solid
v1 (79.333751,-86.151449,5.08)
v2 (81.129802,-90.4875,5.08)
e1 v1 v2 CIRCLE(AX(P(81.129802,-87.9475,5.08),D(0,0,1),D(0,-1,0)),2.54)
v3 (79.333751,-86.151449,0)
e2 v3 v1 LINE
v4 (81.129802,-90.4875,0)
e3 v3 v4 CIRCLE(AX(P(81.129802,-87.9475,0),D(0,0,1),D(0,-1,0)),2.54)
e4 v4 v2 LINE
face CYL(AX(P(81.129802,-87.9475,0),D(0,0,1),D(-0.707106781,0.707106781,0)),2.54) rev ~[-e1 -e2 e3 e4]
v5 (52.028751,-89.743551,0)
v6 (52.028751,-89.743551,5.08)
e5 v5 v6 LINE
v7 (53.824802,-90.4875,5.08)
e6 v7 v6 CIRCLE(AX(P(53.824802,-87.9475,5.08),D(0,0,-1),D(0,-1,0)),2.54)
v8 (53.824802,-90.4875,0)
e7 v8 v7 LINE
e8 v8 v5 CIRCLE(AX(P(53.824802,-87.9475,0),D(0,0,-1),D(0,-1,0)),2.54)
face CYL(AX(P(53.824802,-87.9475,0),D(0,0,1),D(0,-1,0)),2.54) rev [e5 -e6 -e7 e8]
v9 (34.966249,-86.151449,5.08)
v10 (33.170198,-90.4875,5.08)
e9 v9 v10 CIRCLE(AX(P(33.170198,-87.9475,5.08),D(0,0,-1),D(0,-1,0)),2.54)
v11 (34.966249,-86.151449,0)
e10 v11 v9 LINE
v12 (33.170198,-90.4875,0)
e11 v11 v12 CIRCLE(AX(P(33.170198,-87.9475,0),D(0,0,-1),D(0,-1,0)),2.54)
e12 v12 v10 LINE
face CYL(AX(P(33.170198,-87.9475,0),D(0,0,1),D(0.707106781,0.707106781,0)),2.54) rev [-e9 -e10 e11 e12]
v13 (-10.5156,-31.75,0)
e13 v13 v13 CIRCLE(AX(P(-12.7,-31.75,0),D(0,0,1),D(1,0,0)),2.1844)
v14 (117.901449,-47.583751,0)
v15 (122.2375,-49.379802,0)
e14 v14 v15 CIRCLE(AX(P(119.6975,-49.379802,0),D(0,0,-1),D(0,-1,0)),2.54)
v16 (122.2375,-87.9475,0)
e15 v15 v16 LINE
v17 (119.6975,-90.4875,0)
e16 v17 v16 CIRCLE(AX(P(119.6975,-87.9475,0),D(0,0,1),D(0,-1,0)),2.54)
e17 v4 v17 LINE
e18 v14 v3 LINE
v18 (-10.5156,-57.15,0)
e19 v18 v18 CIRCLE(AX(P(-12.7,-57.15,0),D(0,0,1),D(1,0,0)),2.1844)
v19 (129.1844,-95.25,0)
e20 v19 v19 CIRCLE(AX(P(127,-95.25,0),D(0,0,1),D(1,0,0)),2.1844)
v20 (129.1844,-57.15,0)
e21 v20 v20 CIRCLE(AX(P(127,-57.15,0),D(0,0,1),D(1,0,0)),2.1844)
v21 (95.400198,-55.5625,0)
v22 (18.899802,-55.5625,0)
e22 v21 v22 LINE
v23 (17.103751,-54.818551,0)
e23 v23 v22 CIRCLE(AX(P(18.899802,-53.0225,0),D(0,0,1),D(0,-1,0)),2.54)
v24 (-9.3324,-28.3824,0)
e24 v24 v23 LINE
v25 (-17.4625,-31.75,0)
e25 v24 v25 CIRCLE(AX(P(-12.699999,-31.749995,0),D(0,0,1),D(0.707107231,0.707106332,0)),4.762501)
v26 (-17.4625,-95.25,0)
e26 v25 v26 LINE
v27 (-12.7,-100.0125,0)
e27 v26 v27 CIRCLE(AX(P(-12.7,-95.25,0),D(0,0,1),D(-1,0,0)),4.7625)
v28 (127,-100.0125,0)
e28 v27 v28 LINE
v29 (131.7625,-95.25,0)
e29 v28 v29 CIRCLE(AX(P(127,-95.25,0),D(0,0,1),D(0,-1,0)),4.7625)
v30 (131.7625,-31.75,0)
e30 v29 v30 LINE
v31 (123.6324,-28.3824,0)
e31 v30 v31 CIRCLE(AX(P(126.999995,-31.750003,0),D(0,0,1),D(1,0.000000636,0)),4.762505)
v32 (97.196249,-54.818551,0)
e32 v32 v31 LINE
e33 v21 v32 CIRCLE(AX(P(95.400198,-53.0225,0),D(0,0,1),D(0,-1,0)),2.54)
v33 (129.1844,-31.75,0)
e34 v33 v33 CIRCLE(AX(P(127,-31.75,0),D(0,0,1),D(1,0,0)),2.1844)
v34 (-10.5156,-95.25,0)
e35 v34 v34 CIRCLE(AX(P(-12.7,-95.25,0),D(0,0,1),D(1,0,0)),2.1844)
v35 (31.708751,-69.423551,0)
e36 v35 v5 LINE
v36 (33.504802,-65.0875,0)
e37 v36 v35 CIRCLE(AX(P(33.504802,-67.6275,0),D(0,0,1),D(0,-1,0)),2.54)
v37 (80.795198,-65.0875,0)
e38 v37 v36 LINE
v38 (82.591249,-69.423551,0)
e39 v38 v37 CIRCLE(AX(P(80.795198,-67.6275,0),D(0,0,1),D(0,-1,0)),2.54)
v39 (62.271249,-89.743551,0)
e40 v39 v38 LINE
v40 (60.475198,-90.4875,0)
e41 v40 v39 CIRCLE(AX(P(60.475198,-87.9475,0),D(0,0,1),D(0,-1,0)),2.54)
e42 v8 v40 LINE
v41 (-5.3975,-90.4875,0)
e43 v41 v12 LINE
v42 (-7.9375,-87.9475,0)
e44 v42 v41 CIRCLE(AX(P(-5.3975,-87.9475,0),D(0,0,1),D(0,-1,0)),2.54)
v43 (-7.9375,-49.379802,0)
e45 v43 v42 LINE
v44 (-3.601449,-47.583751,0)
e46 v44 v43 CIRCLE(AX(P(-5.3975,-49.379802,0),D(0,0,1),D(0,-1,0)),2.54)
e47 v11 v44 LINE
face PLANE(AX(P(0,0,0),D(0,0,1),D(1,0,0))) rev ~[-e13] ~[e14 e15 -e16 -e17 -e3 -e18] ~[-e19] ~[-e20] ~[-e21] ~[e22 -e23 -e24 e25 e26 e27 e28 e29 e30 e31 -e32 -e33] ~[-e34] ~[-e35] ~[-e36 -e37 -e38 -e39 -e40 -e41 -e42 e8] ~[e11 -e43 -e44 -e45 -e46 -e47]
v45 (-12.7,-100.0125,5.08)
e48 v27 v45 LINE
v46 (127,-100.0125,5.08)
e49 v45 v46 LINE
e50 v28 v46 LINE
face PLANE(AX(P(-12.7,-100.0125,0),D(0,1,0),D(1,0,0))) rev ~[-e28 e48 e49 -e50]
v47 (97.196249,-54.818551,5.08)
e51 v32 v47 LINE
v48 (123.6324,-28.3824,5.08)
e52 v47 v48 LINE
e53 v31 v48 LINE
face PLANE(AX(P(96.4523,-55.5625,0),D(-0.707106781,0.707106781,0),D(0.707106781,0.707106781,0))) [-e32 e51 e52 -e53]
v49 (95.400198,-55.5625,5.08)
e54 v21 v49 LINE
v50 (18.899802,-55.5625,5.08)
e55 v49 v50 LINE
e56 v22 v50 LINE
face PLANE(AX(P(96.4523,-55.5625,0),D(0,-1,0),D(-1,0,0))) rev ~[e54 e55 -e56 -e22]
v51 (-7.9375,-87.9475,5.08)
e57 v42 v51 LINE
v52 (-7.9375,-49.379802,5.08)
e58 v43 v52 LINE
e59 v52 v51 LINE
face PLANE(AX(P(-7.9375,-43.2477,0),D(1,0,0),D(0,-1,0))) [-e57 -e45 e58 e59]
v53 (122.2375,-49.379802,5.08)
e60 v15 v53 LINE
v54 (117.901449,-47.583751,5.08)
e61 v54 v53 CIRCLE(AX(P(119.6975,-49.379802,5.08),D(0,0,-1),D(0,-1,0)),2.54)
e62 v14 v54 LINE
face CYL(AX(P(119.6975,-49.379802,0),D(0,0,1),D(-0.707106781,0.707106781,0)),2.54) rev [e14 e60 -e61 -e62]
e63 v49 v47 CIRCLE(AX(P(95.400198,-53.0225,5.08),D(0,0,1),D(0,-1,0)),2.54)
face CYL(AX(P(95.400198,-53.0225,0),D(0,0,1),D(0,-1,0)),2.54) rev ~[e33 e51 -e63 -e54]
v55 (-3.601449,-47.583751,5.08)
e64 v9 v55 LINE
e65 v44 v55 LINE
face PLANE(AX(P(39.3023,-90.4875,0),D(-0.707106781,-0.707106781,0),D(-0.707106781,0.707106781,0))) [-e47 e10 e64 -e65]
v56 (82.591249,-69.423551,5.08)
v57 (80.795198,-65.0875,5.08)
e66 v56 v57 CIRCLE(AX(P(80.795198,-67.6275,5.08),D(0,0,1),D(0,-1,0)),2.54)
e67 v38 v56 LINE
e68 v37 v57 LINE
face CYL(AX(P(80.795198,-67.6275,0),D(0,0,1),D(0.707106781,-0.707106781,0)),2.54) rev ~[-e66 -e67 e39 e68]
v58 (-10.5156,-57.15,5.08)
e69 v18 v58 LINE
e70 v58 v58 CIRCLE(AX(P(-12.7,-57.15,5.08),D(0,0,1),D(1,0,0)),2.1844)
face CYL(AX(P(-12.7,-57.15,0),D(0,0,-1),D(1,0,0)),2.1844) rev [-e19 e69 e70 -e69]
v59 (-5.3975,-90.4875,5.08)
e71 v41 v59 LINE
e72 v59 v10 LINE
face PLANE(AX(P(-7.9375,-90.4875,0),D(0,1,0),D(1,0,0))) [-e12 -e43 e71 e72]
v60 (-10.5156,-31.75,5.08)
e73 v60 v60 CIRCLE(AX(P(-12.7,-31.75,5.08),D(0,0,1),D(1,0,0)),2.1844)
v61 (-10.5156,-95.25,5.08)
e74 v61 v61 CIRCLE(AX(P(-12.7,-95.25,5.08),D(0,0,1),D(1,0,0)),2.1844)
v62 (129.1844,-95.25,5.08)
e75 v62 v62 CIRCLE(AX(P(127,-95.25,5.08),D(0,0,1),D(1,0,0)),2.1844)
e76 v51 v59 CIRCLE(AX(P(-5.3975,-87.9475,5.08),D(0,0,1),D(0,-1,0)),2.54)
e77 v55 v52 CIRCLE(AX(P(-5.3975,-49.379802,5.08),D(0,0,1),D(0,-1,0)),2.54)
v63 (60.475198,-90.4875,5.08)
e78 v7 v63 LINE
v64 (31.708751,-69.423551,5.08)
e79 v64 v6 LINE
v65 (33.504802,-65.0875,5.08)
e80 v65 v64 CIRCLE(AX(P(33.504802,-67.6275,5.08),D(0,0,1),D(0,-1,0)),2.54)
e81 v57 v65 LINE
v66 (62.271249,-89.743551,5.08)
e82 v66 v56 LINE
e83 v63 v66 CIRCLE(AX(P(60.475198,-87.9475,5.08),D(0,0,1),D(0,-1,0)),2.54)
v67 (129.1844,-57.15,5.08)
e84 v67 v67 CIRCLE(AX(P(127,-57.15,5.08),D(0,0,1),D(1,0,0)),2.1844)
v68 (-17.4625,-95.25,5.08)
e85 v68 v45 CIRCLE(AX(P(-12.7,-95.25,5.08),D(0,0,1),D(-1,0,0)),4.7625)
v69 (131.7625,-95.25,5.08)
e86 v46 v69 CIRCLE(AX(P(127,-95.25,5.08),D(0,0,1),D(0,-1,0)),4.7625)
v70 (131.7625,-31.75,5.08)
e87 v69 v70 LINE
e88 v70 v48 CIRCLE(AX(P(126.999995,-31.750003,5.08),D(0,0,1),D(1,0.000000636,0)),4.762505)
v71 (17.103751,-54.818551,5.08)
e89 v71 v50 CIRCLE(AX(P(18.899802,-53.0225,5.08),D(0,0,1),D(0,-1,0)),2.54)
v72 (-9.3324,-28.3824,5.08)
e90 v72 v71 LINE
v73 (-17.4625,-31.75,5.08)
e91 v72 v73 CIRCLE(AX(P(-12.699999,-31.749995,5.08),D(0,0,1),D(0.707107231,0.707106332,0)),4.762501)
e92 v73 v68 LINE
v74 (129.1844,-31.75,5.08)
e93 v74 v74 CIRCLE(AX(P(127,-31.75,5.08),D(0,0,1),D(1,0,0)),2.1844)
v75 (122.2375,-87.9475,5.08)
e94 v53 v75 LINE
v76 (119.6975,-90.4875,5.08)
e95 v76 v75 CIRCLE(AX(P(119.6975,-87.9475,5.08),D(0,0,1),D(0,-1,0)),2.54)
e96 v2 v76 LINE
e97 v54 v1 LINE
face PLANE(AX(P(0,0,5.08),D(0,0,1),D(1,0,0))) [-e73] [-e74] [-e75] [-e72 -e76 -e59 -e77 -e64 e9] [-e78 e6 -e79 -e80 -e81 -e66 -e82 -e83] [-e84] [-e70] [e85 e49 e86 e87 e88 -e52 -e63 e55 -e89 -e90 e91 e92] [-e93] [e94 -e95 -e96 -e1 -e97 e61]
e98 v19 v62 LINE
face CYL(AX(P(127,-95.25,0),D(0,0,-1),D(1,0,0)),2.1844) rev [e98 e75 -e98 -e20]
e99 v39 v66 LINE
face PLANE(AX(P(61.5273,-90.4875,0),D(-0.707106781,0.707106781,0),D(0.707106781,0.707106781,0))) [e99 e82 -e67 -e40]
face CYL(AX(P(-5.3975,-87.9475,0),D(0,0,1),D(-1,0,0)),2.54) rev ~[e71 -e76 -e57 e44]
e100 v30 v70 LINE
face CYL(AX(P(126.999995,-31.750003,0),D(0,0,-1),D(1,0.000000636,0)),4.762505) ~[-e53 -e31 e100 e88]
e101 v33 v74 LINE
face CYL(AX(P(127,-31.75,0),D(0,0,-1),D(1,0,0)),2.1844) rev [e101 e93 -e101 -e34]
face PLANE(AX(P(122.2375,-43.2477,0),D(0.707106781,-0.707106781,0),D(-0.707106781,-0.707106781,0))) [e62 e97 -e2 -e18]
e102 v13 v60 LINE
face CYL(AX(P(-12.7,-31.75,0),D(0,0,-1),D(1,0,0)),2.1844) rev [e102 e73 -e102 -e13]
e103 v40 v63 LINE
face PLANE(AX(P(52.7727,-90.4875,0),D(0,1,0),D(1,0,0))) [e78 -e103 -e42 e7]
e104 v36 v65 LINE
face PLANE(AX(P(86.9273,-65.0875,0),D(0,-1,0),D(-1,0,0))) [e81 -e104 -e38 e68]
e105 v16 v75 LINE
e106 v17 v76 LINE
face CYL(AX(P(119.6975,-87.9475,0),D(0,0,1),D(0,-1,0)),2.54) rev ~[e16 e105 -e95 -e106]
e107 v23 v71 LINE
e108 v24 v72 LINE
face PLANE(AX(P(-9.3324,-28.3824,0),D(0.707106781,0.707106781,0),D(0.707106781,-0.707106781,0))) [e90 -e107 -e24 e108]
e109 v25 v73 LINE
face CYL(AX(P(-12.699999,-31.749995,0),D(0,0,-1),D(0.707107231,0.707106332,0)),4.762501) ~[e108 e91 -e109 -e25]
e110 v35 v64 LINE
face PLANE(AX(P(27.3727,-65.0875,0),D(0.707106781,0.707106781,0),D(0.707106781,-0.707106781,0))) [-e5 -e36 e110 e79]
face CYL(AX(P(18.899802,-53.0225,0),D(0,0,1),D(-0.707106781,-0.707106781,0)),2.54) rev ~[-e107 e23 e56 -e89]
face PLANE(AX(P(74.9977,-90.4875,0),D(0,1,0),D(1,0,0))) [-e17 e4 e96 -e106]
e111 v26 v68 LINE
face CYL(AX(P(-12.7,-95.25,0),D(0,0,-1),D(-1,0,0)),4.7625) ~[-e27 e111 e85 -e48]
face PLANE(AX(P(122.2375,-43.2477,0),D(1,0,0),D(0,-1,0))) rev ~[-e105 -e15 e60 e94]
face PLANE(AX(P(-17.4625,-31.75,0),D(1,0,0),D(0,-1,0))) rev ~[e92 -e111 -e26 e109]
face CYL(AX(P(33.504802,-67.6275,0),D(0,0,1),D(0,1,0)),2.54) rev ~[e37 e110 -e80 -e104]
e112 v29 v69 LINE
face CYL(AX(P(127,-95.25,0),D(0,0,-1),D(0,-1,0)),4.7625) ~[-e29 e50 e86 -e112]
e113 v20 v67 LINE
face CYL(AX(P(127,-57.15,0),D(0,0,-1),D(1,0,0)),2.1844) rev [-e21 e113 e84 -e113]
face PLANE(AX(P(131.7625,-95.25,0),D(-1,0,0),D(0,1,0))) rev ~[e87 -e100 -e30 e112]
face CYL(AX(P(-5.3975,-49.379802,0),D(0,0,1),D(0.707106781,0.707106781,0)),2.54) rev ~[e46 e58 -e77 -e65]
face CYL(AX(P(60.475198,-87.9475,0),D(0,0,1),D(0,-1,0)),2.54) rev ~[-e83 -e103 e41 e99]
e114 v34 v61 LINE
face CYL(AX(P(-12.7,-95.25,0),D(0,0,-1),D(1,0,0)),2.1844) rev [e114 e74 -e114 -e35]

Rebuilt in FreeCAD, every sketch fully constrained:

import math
import FreeCAD as App
import Part
import Sketcher
Q = App.Units.Quantity


def edges_at(feature, points):
    """Names of the edges that pass closest to the given points."""
    edges = feature.Shape.Edges
    near = lambda p: min(range(len(edges)), key=lambda i: edges[i].distToShape(Part.Vertex(*p))[0])
    return sorted({f"Edge{near(p) + 1}" for p in points})

doc = App.newDocument("Part")
params = doc.addObject("Spreadsheet::Sheet", "Params")
for row, (alias, value) in enumerate([
    ("sketch1_radius", "0.1875 in"),
    ("sketch1_diameter", "0.172 in"),
    ("sketch1_width", "5.5 in"),
    ("sketch1_height", "2.5 in"),
    ("pad1_length", "0.2 in"),
    ("fillet_radius", "0.1 in"),
    ("fillet2_radius", "0.1 in"),
], start=1):
    params.set(f"A{row}", alias)
    params.set(f"B{row}", "=" + value)
    params.setAlias(f"B{row}", alias)

body = doc.addObject("PartDesign::Body", "Body")

sketch1 = body.newObject("Sketcher::SketchObject", "Sketch")
sketch1.AttachmentSupport = (doc.getObject("XY_Plane"), [""])
sketch1.MapMode = "FlatFace"
sketch1.addGeometry([
    Part.LineSegment(App.Vector(-17.5, -31.8, 0), App.Vector(-17.5, -95.2, 0)),
    Part.ArcOfCircle(Part.Circle(App.Vector(-12.7, -95.2, 0), App.Vector(0, 0, 1), 4.8), math.radians(180), math.radians(270)),
    Part.LineSegment(App.Vector(-12.7, -100, 0), App.Vector(127, -100, 0)),
    Part.ArcOfCircle(Part.Circle(App.Vector(127, -95.2, 0), App.Vector(0, 0, 1), 4.8), math.radians(-90), math.radians(0)),
    Part.LineSegment(App.Vector(131.8, -95.2, 0), App.Vector(131.8, -31.8, 0)),
    Part.ArcOfCircle(Part.Circle(App.Vector(127, -31.8, 0), App.Vector(0, 0, 1), 4.8), math.radians(0), math.radians(135)),
    Part.LineSegment(App.Vector(123.6, -28.4, 0), App.Vector(96.5, -55.6, 0)),
    Part.LineSegment(App.Vector(96.5, -55.6, 0), App.Vector(17.8, -55.6, 0)),
    Part.LineSegment(App.Vector(17.8, -55.6, 0), App.Vector(-9.3, -28.4, 0)),
    Part.ArcOfCircle(Part.Circle(App.Vector(-12.7, -31.8, 0), App.Vector(0, 0, 1), 4.8), math.radians(45), math.radians(180)),
    Part.Circle(App.Vector(-12.7, -95.2, 0), App.Vector(0, 0, 1), 2.2),
    Part.LineSegment(App.Vector(-7.9, -43.2, 0), App.Vector(39.3, -90.5, 0)),
    Part.LineSegment(App.Vector(39.3, -90.5, 0), App.Vector(-7.9, -90.5, 0)),
    Part.LineSegment(App.Vector(-7.9, -90.5, 0), App.Vector(-7.9, -43.2, 0)),
    Part.Circle(App.Vector(127, -95.2, 0), App.Vector(0, 0, 1), 2.2),
    Part.LineSegment(App.Vector(61.5, -90.5, 0), App.Vector(52.8, -90.5, 0)),
    Part.LineSegment(App.Vector(52.8, -90.5, 0), App.Vector(27.4, -65.1, 0)),
    Part.LineSegment(App.Vector(27.4, -65.1, 0), App.Vector(86.9, -65.1, 0)),
    Part.LineSegment(App.Vector(86.9, -65.1, 0), App.Vector(61.5, -90.5, 0)),
    Part.LineSegment(App.Vector(75, -90.5, 0), App.Vector(122.2, -43.2, 0)),
    Part.LineSegment(App.Vector(122.2, -43.2, 0), App.Vector(122.2, -90.5, 0)),
    Part.LineSegment(App.Vector(122.2, -90.5, 0), App.Vector(75, -90.5, 0)),
    Part.Circle(App.Vector(-12.7, -57.1, 0), App.Vector(0, 0, 1), 2.2),
    Part.Circle(App.Vector(-12.7, -31.8, 0), App.Vector(0, 0, 1), 2.2),
    Part.Circle(App.Vector(127, -57.1, 0), App.Vector(0, 0, 1), 2.2),
    Part.Circle(App.Vector(127, -31.8, 0), App.Vector(0, 0, 1), 2.2),
], False)
sketch1.addConstraint([
    Sketcher.Constraint("Tangent", 0, 2, 1, 1),
    Sketcher.Constraint("Tangent", 1, 2, 2, 1),
    Sketcher.Constraint("Tangent", 2, 2, 3, 1),
    Sketcher.Constraint("Tangent", 3, 2, 4, 1),
    Sketcher.Constraint("Tangent", 4, 2, 5, 1),
    Sketcher.Constraint("Tangent", 5, 2, 6, 1),
    Sketcher.Constraint("Coincident", 6, 2, 7, 1),
    Sketcher.Constraint("Coincident", 7, 2, 8, 1),
    Sketcher.Constraint("Tangent", 8, 2, 9, 1),
    Sketcher.Constraint("Tangent", 9, 2, 0, 1),
    Sketcher.Constraint("Coincident", 11, 2, 12, 1),
    Sketcher.Constraint("Coincident", 12, 2, 13, 1),
    Sketcher.Constraint("Coincident", 13, 2, 11, 1),
    Sketcher.Constraint("Coincident", 15, 2, 16, 1),
    Sketcher.Constraint("Coincident", 16, 2, 17, 1),
    Sketcher.Constraint("Coincident", 17, 2, 18, 1),
    Sketcher.Constraint("Coincident", 18, 2, 15, 1),
    Sketcher.Constraint("Coincident", 19, 2, 20, 1),
    Sketcher.Constraint("Coincident", 20, 2, 21, 1),
    Sketcher.Constraint("Coincident", 21, 2, 19, 1),
    Sketcher.Constraint("Vertical", 0),
    Sketcher.Constraint("Horizontal", 2),
    Sketcher.Constraint("Vertical", 4),
    Sketcher.Constraint("Horizontal", 7),
    Sketcher.Constraint("Horizontal", 12),
    Sketcher.Constraint("Vertical", 13),
    Sketcher.Constraint("Horizontal", 15),
    Sketcher.Constraint("Horizontal", 17),
    Sketcher.Constraint("Vertical", 20),
    Sketcher.Constraint("Horizontal", 21),
    Sketcher.Constraint("Coincident", 10, 3, 1, 3),
    Sketcher.Constraint("Coincident", 14, 3, 3, 3),
    Sketcher.Constraint("Coincident", 23, 3, 9, 3),
    Sketcher.Constraint("Coincident", 25, 3, 5, 3),
    Sketcher.Constraint("Equal", 1, 3),
    Sketcher.Constraint("Equal", 3, 5),
    Sketcher.Constraint("Equal", 5, 9),
    Sketcher.Constraint("Equal", 10, 14),
    Sketcher.Constraint("Equal", 14, 22),
    Sketcher.Constraint("Equal", 22, 23),
    Sketcher.Constraint("Equal", 23, 24),
    Sketcher.Constraint("Equal", 24, 25),
    Sketcher.Constraint("Perpendicular", 6, 8),
    Sketcher.Constraint("Parallel", 8, 11),
    Sketcher.Constraint("Parallel", 11, 16),
    Sketcher.Constraint("Perpendicular", 16, 18),
    Sketcher.Constraint("Parallel", 18, 19),
    Sketcher.Constraint("Horizontal", 5, 3, 9, 3),
    Sketcher.Constraint("Horizontal", 22, 3, 24, 3),
    Sketcher.Constraint("Horizontal", 5, 2, 8, 2),
    Sketcher.Constraint("Horizontal", 12, 2, 15, 2),
    Sketcher.Constraint("Horizontal", 13, 2, 19, 2),
    Sketcher.Constraint("Horizontal", 18, 2, 20, 2),
    Sketcher.Constraint("Vertical", 10, 3, 22, 3),
    Sketcher.Constraint("Vertical", 14, 3, 24, 3),
    Sketcher.Constraint("Radius", 1, Q("0.1875 in")),
    Sketcher.Constraint("DistanceY", 22, 3, 9, 3, Q("1 in")),
    Sketcher.Constraint("DistanceY", 11, 2, 16, 2, Q("1 in")),
    Sketcher.Constraint("Diameter", 10, Q("0.172 in")),
    Sketcher.Constraint("DistanceX", 2, 1, 2, 2, Q("5.5 in")),
    Sketcher.Constraint("DistanceY", 0, 2, 0, 1, Q("2.5 in")),
    Sketcher.Constraint("DistanceX", -1, 1, 3, 3, Q("5 in")),
    Sketcher.Constraint("DistanceY", 1, 2, 11, 2, Q("0.375 in")),
    Sketcher.Constraint("DistanceX", 0, 2, 12, 2, Q("0.375 in")),
    Sketcher.Constraint("DistanceX", 7, 2, 16, 2, Q("0.375 in")),
    Sketcher.Constraint("DistanceY", 16, 2, 7, 2, Q("0.375 in")),
    Sketcher.Constraint("DistanceX", 17, 2, 6, 2, Q("0.375 in")),
    Sketcher.Constraint("DistanceX", 19, 2, 4, 2, Q("0.375 in")),
    Sketcher.Constraint("DistanceY", 1, 3, -1, 1, Q("3.75 in")),
    Sketcher.Constraint("DistanceX", 11, 2, 18, 2, Q("0.875 in")),
])
sketch1.setExpression("Constraints[55]", "Params.sketch1_radius")
sketch1.setExpression("Constraints[58]", "Params.sketch1_diameter")
sketch1.setExpression("Constraints[59]", "Params.sketch1_width")
sketch1.setExpression("Constraints[60]", "Params.sketch1_height")
pad1 = body.newObject("PartDesign::Pad", "Pad")
pad1.Profile = sketch1
pad1.setExpression("Length", "Params.pad1_length")
doc.recompute()

fillet = body.newObject("PartDesign::Fillet", "Fillet")
fillet.Base = (pad1, edges_at(pad1, [
    (39.302, -90.487, 2.54),
    (74.998, -90.487, 2.54),
    (122.237, -43.248, 2.54),
    (122.237, -90.487, 2.54),
    (-7.938, -43.248, 2.54),
    (-7.938, -90.487, 2.54),
]))
fillet.setExpression("Radius", "Params.fillet_radius")
doc.recompute()

fillet2 = body.newObject("PartDesign::Fillet", "Fillet001")
fillet2.Base = (fillet, edges_at(fillet, [
    (27.373, -65.088, 2.54),
    (86.927, -65.088, 2.54),
    (96.452, -55.562, 2.54),
    (17.848, -55.562, 2.54),
    (61.527, -90.487, 2.54),
    (52.773, -90.487, 2.54),
]))
fillet2.setExpression("Radius", "Params.fillet2_radius")

doc.recompute()
